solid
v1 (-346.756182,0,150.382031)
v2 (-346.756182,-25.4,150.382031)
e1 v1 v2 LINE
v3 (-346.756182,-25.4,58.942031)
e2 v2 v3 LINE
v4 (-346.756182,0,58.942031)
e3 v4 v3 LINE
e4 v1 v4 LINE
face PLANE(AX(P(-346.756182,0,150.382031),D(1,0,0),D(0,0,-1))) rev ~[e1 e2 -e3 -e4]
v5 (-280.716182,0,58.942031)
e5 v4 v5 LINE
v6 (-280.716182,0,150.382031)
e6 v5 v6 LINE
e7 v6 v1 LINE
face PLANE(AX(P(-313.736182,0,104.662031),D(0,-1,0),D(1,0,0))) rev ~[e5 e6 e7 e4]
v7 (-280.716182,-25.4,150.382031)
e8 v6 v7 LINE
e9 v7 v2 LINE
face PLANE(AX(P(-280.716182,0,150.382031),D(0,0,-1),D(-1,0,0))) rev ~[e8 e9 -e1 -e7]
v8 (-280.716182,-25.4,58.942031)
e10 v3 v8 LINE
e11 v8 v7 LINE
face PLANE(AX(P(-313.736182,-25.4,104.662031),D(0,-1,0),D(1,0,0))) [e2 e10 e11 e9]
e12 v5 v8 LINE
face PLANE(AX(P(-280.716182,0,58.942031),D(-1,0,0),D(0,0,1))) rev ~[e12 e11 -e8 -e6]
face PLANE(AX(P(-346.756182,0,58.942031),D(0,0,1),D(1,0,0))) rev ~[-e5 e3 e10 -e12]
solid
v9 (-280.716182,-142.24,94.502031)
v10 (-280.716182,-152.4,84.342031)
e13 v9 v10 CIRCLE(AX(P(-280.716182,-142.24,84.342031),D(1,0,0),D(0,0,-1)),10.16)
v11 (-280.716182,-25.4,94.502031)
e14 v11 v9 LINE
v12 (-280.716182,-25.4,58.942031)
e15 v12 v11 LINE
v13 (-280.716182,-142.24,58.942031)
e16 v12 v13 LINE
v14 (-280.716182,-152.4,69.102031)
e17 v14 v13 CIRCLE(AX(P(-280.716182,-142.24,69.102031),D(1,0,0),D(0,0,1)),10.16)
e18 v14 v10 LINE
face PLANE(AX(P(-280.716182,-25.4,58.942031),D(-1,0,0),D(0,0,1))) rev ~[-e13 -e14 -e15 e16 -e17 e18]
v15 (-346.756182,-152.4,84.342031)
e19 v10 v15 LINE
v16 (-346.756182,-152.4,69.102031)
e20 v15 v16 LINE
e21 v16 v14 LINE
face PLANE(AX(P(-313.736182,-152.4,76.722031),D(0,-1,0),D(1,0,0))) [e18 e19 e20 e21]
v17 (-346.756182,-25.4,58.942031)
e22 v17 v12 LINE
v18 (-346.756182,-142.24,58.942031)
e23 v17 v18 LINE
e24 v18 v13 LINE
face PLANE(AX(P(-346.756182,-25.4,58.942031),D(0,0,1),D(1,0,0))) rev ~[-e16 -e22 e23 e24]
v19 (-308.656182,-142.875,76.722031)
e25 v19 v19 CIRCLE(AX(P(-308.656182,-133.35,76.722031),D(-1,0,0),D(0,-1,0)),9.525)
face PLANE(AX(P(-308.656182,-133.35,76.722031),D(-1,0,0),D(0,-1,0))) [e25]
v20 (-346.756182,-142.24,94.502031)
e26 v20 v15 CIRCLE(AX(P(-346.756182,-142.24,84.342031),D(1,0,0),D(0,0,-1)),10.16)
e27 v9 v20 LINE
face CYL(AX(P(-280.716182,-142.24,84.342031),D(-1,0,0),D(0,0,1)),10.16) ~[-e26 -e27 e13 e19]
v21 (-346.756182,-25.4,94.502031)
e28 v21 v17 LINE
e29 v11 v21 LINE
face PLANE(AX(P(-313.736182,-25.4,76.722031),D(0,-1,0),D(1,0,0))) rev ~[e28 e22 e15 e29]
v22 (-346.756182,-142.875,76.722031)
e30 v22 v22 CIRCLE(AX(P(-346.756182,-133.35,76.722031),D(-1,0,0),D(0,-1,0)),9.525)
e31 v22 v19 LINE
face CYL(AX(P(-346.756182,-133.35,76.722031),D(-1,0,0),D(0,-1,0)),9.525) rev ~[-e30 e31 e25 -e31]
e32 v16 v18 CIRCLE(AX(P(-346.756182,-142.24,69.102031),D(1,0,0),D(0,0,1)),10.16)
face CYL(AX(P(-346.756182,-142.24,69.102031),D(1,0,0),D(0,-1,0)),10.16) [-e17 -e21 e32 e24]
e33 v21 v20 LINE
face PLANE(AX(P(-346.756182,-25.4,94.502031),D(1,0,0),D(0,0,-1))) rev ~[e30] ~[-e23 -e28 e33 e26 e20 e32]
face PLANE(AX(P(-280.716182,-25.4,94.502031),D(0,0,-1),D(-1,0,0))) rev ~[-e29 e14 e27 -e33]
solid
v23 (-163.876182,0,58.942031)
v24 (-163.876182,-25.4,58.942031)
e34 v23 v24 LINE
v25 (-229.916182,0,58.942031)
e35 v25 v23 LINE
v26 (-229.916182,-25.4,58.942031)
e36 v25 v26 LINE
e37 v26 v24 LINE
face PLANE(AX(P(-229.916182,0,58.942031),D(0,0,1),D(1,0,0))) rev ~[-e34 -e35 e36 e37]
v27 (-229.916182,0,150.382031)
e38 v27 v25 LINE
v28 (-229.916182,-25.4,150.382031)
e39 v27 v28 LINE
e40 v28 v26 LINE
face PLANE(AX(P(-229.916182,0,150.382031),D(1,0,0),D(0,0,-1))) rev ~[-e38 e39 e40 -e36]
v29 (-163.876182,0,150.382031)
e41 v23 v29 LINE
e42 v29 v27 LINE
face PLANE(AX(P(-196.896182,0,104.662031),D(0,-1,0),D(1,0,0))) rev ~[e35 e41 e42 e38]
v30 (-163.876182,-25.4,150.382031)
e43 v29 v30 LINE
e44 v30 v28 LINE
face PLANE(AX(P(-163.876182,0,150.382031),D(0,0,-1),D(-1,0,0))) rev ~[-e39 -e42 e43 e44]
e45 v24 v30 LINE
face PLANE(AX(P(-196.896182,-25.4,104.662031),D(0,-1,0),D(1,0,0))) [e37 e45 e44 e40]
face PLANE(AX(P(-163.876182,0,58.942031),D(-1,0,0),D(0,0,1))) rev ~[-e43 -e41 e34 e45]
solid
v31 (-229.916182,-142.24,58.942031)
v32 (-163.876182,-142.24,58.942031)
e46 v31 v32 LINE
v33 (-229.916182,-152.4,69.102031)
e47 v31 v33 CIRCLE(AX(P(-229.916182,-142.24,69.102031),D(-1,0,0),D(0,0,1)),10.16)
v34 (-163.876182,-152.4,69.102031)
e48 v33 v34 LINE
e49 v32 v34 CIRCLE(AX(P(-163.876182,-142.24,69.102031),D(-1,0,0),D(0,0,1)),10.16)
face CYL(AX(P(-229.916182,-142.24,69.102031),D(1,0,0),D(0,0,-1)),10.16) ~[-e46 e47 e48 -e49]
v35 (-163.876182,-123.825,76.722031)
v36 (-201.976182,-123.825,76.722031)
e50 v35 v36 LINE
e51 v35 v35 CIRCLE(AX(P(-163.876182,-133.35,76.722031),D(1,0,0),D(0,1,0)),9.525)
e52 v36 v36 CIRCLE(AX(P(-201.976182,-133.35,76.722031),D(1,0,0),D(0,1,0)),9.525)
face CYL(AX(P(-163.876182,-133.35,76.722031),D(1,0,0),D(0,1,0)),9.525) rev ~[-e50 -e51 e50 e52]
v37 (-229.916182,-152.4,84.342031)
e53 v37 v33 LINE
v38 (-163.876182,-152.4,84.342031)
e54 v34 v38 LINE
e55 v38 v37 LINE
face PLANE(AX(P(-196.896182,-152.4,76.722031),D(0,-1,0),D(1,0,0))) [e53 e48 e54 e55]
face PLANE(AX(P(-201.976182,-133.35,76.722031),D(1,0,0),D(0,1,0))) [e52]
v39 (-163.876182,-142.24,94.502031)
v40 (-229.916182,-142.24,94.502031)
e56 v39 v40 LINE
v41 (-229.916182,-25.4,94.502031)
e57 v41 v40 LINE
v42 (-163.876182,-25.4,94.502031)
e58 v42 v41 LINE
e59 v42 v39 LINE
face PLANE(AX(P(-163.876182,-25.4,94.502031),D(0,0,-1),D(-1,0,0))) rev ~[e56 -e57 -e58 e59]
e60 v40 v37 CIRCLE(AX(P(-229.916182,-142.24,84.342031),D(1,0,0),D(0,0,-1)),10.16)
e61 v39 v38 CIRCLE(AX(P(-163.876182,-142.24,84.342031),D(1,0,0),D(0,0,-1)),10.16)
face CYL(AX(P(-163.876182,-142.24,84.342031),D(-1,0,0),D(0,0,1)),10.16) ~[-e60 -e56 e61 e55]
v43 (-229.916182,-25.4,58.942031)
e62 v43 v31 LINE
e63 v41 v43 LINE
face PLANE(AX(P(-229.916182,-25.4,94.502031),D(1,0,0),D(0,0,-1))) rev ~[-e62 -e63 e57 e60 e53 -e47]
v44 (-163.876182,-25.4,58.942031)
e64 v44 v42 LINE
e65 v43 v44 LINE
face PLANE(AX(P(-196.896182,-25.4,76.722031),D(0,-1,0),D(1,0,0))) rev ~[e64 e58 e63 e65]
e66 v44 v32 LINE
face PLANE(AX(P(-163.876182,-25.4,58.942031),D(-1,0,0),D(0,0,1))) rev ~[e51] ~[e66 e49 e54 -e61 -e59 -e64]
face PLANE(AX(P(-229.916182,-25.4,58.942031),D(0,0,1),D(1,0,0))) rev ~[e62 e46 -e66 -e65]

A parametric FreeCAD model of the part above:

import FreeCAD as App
import Part
import Sketcher
Q = App.Units.Quantity


def edges_at(feature, points):
    """Names of the edges that pass closest to the given points."""
    edges = feature.Shape.Edges
    near = lambda p: min(range(len(edges)), key=lambda i: edges[i].distToShape(Part.Vertex(*p))[0])
    return sorted({f"Edge{near(p) + 1}" for p in points})


def add_polygon(sketch, points):
    """Adds a closed chain of lines whose ends are joined by coincident constraints."""
    first, n = sketch.GeometryCount, len(points)
    for a, b in zip(points, points[1:] + points[:1]):
        sketch.addGeometry(Part.LineSegment(App.Vector(*a, 0), App.Vector(*b, 0)), False)
    for i in range(n):
        sketch.addConstraint(Sketcher.Constraint("Coincident", first + i, 2, first + (i + 1) % n, 1))

doc = App.newDocument("Part")
body = doc.addObject("PartDesign::Body", "Body")
body.AllowCompound = True

# Sketch on XZ plane
sketch1 = body.newObject("Sketcher::SketchObject", "Sketch")
sketch1.AttachmentSupport = (doc.getObject("XZ_Plane"), [""])
sketch1.MapMode = "FlatFace"
add_polygon(sketch1, [(-230, 150), (-230, 59), (-164, 59), (-164, 150)])  # lines 0-3
add_polygon(sketch1, [(-281, 150), (-347, 150), (-347, 59), (-281, 59)])  # lines 4-7
sketch1.addConstraint([
    Sketcher.Constraint("Vertical", 0),
    Sketcher.Constraint("Horizontal", 1),
    Sketcher.Constraint("Vertical", 2),
    Sketcher.Constraint("Horizontal", 3),
    Sketcher.Constraint("Horizontal", 4),
    Sketcher.Constraint("Vertical", 5),
    Sketcher.Constraint("Horizontal", 6),
    Sketcher.Constraint("Vertical", 7),
    Sketcher.Constraint("Horizontal", 3, 2, 4, 2),
    Sketcher.Constraint("Horizontal", 1, 2, 5, 2),
    Sketcher.Constraint("Equal", 3, 4),
    Sketcher.Constraint("DistanceX", 1, 1, 1, 2, Q("2.6 in")),
    Sketcher.Constraint("DistanceY", 0, 2, 0, 1, Q("3.6 in")),
    Sketcher.Constraint("DistanceX", 6, 2, 0, 2, Q("2 in")),
    Sketcher.Constraint("DistanceX", 0, 2, -1, 1, Q("229.916182 mm")),
    Sketcher.Constraint("DistanceY", -1, 1, 0, 2, Q("58.942031 mm")),
])
pad1 = body.newObject("PartDesign::Pad", "Pad")
pad1.Profile = sketch1
pad1.Length = Q("1 in")
body2 = doc.addObject("PartDesign::Body", "Body001")
body2.AllowCompound = True

# Sketch on XZ plane
sketch2 = body2.newObject("Sketcher::SketchObject", "Sketch001")
sketch2.AttachmentSupport = (doc.getObject("XZ_Plane001"), [""])
sketch2.MapMode = "FlatFace"
sketch2.AttachmentOffset = App.Placement(App.Vector(0, 0, 1 * 25.4), App.Rotation())
add_polygon(sketch2, [(-230, 95), (-230, 59), (-164, 59), (-164, 95)])  # lines 0-3
add_polygon(sketch2, [(-281, 95), (-347, 95), (-347, 59), (-281, 59)])  # lines 4-7
sketch2.addConstraint([
    Sketcher.Constraint("Vertical", 0),
    Sketcher.Constraint("Horizontal", 1),
    Sketcher.Constraint("Vertical", 2),
    Sketcher.Constraint("Horizontal", 3),
    Sketcher.Constraint("Horizontal", 4),
    Sketcher.Constraint("Vertical", 5),
    Sketcher.Constraint("Horizontal", 6),
    Sketcher.Constraint("Vertical", 7),
    Sketcher.Constraint("Horizontal", 3, 2, 4, 2),
    Sketcher.Constraint("Horizontal", 1, 2, 5, 2),
    Sketcher.Constraint("Equal", 3, 4),
    Sketcher.Constraint("DistanceX", 1, 1, 1, 2, Q("2.6 in")),
    Sketcher.Constraint("DistanceY", 0, 2, 0, 1, Q("1.4 in")),
    Sketcher.Constraint("DistanceX", 6, 2, 0, 2, Q("2 in")),
    Sketcher.Constraint("DistanceX", 0, 2, -1, 1, Q("229.916182 mm")),
    Sketcher.Constraint("DistanceY", -1, 1, 0, 2, Q("58.942031 mm")),
])
pad2 = body2.newObject("PartDesign::Pad", "Pad001")
pad2.Profile = sketch2
pad2.Length = Q("5 in")

# Sketch on YZ plane
sketch3 = body2.newObject("Sketcher::SketchObject", "Sketch002")
sketch3.AttachmentSupport = (doc.getObject("YZ_Plane001"), [""])
sketch3.MapMode = "FlatFace"
sketch3.AttachmentOffset = App.Placement(App.Vector(0, 0, -163.876182), App.Rotation())
sketch3.addGeometry(Part.Circle(App.Vector(-133, 77, 0), App.Vector(0, 0, 1), 10), False)
sketch3.addConstraint([
    Sketcher.Constraint("Diameter", 0, Q("0.75 in")),
    Sketcher.Constraint("DistanceX", 0, 3, -1, 1, Q("5.25 in")),
    Sketcher.Constraint("DistanceY", -1, 1, 0, 3, Q("76.722031 mm")),
])
pocket1 = body2.newObject("PartDesign::Pocket", "Pocket")
pocket1.Profile = sketch3
pocket1.Length = Q("1.5 in")

# Sketch on YZ plane
sketch4 = body2.newObject("Sketcher::SketchObject", "Sketch003")
sketch4.AttachmentSupport = (doc.getObject("YZ_Plane001"), [""])
sketch4.MapMode = "FlatFace"
sketch4.AttachmentOffset = App.Placement(App.Vector(0, 0, -346.756182), App.Rotation())
sketch4.addGeometry(Part.Circle(App.Vector(-133, 77, 0), App.Vector(0, 0, 1), 10), False)
sketch4.addConstraint([
    Sketcher.Constraint("Diameter", 0, Q("0.75 in")),
    Sketcher.Constraint("DistanceX", 0, 3, -1, 1, Q("5.25 in")),
    Sketcher.Constraint("DistanceY", -1, 1, 0, 3, Q("76.722031 mm")),
])
pocket2 = body2.newObject("PartDesign::Pocket", "Pocket001")
pocket2.Profile = sketch4
pocket2.Length = Q("1.5 in")
pocket2.Reversed = True
doc.recompute()

fillet = body2.newObject("PartDesign::Fillet", "Fillet")
fillet.Base = (pocket2, edges_at(pocket2, [(-313.736, -152.4, 94.502), (-313.736, -152.4, 58.942)]))
fillet.Radius = Q("0.4 in")
doc.recompute()

fillet2 = body2.newObject("PartDesign::Fillet", "Fillet001")
fillet2.Base = (fillet, edges_at(fillet, [(-196.896, -152.4, 58.942), (-196.896, -152.4, 94.502)]))
fillet2.Radius = Q("0.4 in")

doc.recompute()
